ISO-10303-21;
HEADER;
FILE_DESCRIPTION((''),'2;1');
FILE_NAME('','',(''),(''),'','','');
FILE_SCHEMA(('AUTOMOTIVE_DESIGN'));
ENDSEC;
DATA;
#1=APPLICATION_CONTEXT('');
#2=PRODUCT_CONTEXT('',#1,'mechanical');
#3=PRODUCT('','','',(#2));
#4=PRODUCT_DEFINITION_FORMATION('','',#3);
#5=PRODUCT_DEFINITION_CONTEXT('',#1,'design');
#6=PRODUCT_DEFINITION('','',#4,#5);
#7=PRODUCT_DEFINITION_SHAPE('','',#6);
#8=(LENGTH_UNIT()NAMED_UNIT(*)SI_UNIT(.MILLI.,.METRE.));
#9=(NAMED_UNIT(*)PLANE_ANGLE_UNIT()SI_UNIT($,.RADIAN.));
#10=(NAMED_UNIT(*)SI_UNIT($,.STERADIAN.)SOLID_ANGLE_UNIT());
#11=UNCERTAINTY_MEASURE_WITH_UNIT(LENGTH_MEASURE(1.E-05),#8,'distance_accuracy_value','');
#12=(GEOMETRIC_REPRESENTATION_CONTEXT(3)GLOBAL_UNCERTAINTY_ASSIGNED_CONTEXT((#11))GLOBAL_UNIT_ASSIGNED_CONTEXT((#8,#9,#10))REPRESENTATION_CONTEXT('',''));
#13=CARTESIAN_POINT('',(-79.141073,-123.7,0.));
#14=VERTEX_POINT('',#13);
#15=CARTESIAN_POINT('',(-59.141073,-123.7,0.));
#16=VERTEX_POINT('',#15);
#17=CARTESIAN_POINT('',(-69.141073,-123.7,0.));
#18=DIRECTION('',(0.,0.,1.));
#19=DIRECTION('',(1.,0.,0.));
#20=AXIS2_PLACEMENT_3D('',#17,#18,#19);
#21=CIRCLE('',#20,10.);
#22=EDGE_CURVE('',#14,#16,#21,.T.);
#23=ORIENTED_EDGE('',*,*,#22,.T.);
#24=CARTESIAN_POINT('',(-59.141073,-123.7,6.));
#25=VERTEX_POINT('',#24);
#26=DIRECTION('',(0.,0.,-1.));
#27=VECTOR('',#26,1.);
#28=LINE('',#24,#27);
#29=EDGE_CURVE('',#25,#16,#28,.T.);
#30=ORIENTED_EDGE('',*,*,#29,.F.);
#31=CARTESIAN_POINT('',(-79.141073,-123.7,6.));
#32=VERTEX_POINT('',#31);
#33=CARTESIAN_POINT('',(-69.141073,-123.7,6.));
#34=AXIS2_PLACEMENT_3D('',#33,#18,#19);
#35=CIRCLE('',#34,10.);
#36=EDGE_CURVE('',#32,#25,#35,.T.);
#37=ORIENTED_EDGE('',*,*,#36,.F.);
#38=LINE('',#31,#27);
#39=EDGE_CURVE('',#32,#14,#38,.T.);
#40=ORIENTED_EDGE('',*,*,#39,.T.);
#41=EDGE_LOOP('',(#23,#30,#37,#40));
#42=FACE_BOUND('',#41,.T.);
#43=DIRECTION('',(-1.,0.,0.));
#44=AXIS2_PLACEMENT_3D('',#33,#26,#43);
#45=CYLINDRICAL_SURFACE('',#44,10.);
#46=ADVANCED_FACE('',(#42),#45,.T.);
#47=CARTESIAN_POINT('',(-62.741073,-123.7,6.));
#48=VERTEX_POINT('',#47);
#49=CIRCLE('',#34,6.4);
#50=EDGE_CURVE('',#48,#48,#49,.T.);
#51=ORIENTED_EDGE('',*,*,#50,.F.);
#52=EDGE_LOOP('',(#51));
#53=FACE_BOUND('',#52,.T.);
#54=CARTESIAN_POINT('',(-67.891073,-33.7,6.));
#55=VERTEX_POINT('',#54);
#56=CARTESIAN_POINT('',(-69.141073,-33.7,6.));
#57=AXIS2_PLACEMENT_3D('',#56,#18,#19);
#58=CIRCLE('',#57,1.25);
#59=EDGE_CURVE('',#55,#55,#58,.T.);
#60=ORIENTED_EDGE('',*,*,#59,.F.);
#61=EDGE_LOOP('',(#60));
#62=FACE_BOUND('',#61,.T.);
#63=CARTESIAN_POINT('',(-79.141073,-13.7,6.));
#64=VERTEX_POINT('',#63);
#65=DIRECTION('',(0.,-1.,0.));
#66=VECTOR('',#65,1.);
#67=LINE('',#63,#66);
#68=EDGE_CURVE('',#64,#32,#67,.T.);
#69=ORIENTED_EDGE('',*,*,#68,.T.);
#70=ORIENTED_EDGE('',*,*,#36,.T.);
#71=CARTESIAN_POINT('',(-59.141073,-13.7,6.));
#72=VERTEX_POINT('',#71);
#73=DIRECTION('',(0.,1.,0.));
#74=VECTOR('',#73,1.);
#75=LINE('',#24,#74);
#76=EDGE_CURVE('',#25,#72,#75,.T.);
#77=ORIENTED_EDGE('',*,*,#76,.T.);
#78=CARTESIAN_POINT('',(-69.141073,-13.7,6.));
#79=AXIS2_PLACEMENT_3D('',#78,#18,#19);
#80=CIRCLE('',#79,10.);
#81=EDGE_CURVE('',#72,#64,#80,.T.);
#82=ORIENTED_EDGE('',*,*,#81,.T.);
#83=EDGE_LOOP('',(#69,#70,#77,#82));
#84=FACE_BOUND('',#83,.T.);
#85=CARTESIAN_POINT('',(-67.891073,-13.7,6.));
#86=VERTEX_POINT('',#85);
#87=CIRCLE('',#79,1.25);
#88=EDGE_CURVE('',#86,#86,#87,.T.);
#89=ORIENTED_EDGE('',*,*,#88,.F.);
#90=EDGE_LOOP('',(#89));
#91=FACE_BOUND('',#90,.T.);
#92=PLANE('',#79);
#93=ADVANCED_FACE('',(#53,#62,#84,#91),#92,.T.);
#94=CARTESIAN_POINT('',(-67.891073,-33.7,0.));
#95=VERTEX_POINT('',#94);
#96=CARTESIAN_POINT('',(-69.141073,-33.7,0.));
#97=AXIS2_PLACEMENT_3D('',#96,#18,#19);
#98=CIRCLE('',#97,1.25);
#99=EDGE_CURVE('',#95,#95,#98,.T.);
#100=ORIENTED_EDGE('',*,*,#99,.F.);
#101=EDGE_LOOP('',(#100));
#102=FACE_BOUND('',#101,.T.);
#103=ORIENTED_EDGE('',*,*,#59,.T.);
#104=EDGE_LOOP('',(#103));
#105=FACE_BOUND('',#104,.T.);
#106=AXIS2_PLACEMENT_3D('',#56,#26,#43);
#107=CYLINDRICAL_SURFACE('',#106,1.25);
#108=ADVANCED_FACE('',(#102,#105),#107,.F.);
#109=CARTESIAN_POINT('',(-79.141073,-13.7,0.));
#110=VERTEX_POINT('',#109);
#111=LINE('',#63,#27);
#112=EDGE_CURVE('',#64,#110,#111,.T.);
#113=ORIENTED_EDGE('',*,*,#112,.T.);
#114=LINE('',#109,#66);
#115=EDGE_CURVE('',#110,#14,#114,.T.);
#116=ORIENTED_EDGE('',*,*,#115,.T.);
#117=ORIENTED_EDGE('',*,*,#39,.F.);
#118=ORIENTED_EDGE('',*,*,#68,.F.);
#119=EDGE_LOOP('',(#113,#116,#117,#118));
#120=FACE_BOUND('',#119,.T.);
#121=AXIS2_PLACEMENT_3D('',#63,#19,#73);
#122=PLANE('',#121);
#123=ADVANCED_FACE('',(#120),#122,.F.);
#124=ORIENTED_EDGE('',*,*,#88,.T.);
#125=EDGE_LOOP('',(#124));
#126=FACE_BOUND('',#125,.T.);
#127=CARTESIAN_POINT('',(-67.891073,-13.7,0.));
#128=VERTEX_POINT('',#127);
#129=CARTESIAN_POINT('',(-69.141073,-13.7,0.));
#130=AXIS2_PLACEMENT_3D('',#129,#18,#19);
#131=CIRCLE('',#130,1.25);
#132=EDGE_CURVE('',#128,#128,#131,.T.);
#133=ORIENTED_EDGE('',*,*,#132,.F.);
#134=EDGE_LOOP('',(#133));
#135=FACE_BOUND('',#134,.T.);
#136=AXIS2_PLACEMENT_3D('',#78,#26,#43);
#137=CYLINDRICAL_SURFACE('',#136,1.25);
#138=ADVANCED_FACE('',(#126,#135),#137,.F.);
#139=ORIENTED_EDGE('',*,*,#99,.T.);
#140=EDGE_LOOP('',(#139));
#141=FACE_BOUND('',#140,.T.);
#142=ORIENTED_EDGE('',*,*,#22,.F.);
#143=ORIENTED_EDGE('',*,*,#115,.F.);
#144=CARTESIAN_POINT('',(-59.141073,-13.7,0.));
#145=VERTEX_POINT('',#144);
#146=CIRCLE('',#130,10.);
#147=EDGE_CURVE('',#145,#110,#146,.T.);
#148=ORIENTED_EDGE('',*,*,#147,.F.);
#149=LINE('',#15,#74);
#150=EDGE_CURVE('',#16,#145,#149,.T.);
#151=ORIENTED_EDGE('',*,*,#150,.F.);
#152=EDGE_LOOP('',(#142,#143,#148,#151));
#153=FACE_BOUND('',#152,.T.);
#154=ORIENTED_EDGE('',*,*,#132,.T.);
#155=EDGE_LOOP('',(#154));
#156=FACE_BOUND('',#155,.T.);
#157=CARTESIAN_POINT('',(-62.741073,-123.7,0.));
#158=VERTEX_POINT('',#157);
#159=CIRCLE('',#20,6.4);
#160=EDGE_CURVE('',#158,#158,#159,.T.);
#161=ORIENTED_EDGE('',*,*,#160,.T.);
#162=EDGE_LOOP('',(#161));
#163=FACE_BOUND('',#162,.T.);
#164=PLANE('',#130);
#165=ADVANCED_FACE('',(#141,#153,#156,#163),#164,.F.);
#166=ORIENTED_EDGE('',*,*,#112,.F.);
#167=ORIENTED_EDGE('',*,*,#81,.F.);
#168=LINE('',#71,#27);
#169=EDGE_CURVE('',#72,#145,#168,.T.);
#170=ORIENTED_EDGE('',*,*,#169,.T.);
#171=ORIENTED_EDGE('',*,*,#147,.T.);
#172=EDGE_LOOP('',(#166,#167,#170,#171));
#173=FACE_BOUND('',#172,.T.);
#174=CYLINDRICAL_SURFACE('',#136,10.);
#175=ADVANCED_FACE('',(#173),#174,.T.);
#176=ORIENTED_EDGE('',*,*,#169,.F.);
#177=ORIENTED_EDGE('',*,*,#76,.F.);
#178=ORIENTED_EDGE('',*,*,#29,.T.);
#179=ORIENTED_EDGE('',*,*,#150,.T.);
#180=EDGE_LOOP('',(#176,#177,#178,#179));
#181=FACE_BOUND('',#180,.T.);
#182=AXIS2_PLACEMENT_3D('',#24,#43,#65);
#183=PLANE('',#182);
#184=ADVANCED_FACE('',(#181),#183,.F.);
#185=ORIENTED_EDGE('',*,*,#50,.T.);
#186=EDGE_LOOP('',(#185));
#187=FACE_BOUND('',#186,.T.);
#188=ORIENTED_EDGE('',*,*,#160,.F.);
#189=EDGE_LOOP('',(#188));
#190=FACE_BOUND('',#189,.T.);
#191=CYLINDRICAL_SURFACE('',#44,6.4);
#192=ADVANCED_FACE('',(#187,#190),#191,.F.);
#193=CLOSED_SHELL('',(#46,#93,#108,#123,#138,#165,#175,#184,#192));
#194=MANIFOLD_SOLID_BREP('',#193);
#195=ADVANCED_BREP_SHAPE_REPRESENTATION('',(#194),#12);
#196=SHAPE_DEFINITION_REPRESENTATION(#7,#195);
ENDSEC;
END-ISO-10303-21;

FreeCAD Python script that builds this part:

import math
import FreeCAD as App
import Part
import Sketcher

V = App.Vector
Q = App.Units.Quantity

doc = App.newDocument("Part")
body = doc.addObject("PartDesign::Body", "Body")

sketch1 = doc.addObject("Sketcher::SketchObject", "Sketch")
body.addObject(sketch1)
sketch1.AttachmentSupport = (doc.XY_Plane, [""])
sketch1.MapMode = "FlatFace"
sketch1.addGeometry([
    Part.LineSegment(V(-79.141073, -13.7, 0), V(-79.141073, -123.7, 0)),
    Part.ArcOfCircle(Part.Circle(V(-69.141073, -123.7, 0), V(0, 0, 1), 10), math.radians(180), math.radians(360)),
    Part.LineSegment(V(-59.141073, -123.7, 0), V(-59.141073, -13.7, 0)),
    Part.ArcOfCircle(Part.Circle(V(-69.141073, -13.7, 0), V(0, 0, 1), 10), math.radians(0), math.radians(180)),
    Part.Circle(V(-69.141073, -123.7, 0), V(0, 0, 1), 6.4),
    Part.Circle(V(-69.141073, -33.7, 0), V(0, 0, 1), 1.25),
    Part.Circle(V(-69.141073, -13.7, 0), V(0, 0, 1), 1.25),
], False)
sketch1.addConstraint([
    Sketcher.Constraint("Tangent", 0, 2, 1, 1),
    Sketcher.Constraint("Tangent", 1, 2, 2, 1),
    Sketcher.Constraint("Tangent", 2, 2, 3, 1),
    Sketcher.Constraint("Tangent", 3, 2, 0, 1),
    Sketcher.Constraint("Vertical", 0),
    Sketcher.Constraint("Vertical", 2),
    Sketcher.Constraint("Coincident", 4, 3, 1, 3),
    Sketcher.Constraint("Coincident", 6, 3, 3, 3),
    Sketcher.Constraint("Equal", 5, 6),
    Sketcher.Constraint("Vertical", 4, 3, 5, 3),
    Sketcher.Constraint("Radius", 1, Q("10 mm")),
    Sketcher.Constraint("Diameter", 4, Q("12.8 mm")),
    Sketcher.Constraint("Diameter", 5, Q("2.5 mm")),
    Sketcher.Constraint("DistanceY", 0, 2, 0, 1, Q("110 mm")),
    Sketcher.Constraint("DistanceY", 5, 3, 3, 3, Q("20 mm")),
    Sketcher.Constraint("DistanceY", 1, 3, -1, 1, Q("123.7 mm")),
    Sketcher.Constraint("DistanceX", 1, 3, -1, 1, Q("69.141073 mm")),
])
pad1 = doc.addObject("PartDesign::Pad", "Pad")
body.addObject(pad1)
pad1.Profile = sketch1
pad1.Length = 6

doc.recompute()
